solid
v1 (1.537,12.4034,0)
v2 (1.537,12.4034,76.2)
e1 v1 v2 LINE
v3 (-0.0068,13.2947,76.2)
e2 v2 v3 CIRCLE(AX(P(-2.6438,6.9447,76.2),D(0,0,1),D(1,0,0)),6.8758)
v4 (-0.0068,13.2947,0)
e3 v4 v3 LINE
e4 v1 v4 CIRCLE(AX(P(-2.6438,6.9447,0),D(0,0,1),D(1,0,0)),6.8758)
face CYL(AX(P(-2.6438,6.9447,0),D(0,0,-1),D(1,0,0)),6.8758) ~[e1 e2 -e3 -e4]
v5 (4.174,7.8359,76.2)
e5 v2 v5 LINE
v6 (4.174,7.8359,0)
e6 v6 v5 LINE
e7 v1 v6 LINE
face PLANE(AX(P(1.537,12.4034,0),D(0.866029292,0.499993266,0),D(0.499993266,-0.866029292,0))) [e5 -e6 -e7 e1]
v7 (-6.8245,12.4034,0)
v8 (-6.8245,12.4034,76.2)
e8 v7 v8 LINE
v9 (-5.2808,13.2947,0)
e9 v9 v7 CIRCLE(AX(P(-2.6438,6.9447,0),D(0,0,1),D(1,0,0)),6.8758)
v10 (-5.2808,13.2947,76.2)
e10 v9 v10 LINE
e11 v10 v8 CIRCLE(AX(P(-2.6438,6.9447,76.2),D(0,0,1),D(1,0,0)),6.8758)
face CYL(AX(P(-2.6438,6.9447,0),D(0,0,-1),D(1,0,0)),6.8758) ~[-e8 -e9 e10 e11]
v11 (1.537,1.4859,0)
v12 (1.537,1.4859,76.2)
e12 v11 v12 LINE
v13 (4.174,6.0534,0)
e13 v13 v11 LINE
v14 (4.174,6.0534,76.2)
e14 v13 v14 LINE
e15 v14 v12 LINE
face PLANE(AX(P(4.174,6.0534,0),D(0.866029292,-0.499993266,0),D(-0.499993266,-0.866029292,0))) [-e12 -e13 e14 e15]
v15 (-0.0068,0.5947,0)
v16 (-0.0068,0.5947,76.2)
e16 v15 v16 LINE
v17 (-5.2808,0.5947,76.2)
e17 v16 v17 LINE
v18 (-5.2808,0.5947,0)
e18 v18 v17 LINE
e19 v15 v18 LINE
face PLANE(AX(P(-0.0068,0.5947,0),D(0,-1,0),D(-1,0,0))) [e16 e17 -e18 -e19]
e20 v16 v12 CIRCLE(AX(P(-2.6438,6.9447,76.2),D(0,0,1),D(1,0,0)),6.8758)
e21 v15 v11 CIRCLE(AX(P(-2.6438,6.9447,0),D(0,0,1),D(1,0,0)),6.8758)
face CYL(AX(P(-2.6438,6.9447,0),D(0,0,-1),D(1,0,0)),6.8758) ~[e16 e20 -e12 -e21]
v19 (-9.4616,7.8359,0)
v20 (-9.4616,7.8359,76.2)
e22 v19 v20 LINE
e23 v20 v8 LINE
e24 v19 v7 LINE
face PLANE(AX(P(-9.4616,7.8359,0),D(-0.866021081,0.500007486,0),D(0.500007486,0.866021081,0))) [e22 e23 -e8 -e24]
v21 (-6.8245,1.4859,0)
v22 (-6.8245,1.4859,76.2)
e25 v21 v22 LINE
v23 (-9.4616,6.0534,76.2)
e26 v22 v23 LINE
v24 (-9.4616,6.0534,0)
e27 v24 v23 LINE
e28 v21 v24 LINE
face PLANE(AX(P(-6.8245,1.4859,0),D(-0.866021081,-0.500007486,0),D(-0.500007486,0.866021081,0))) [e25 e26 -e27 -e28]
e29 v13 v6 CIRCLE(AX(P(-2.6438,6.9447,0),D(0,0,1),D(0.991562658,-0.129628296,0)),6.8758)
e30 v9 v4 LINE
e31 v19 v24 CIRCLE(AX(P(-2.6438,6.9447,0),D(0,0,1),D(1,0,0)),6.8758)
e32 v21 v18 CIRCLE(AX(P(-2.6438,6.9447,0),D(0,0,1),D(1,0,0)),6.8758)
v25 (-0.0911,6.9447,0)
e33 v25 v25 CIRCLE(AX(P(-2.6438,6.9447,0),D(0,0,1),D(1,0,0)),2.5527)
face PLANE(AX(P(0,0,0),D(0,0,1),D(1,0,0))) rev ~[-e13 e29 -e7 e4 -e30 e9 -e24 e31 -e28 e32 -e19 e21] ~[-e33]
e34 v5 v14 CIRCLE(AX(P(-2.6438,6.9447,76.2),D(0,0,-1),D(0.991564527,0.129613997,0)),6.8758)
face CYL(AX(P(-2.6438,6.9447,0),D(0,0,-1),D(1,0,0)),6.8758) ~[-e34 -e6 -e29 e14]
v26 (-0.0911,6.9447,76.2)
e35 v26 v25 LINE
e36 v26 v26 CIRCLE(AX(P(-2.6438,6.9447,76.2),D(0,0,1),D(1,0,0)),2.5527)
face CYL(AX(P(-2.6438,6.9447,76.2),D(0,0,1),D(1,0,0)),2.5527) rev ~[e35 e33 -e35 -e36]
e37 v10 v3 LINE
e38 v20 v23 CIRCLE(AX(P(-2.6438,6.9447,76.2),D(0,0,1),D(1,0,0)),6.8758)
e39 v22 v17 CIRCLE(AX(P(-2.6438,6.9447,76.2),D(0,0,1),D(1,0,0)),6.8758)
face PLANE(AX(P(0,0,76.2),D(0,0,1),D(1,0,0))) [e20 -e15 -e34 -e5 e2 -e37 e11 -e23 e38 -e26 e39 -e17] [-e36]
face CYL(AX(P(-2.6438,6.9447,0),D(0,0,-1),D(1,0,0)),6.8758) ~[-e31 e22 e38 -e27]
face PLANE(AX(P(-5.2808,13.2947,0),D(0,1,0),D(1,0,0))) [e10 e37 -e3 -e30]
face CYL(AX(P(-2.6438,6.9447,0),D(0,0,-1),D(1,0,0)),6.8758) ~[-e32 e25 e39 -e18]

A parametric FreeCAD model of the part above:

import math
import FreeCAD as App
import Part
import Sketcher

V = App.Vector
Q = App.Units.Quantity

doc = App.newDocument("Part")
body = doc.addObject("PartDesign::Body", "Body")

# Sketch on XY plane
sketch1 = doc.addObject("Sketcher::SketchObject", "Sketch")
body.addObject(sketch1)
sketch1.AttachmentSupport = (doc.XY_Plane, [""])
sketch1.MapMode = "FlatFace"
sketch1.addGeometry([
    Part.ArcOfCircle(Part.Circle(V(-2.6, 6.9, 0), V(0, 0, 1), 6.9), math.radians(-7.45), math.radians(7.45)),  # 0
    Part.LineSegment(V(4.2, 7.8, 0), V(1.5, 12.4, 0)),  # 1
    Part.ArcOfCircle(Part.Circle(V(-2.6, 6.9, 0), V(0, 0, 1), 6.9), math.radians(52.55), math.radians(67.45)),  # 2
    Part.LineSegment(V(0, 13.3, 0), V(-5.3, 13.3, 0)),  # 3
    Part.ArcOfCircle(Part.Circle(V(-2.6, 6.9, 0), V(0, 0, 1), 6.9), math.radians(112.55), math.radians(127.45)),  # 4
    Part.LineSegment(V(-6.8, 12.4, 0), V(-9.5, 7.8, 0)),  # 5
    Part.ArcOfCircle(Part.Circle(V(-2.6, 6.9, 0), V(0, 0, 1), 6.9), math.radians(172.55), math.radians(187.45)),  # 6
    Part.LineSegment(V(-9.5, 6.1, 0), V(-6.8, 1.5, 0)),  # 7
    Part.ArcOfCircle(Part.Circle(V(-2.6, 6.9, 0), V(0, 0, 1), 6.9), math.radians(-127.45), math.radians(-112.55)),  # 8
    Part.LineSegment(V(-5.3, 0.6, 0), V(0, 0.6, 0)),  # 9
    Part.ArcOfCircle(Part.Circle(V(-2.6, 6.9, 0), V(0, 0, 1), 6.9), math.radians(-67.45), math.radians(-52.55)),  # 10
    Part.LineSegment(V(1.5, 1.5, 0), V(4.2, 6.1, 0)),  # 11
], False)
sketch1.addConstraint([
    Sketcher.Constraint("Coincident", 0, 2, 1, 1),
    Sketcher.Constraint("Coincident", 1, 2, 2, 1),
    Sketcher.Constraint("Coincident", 2, 2, 3, 1),
    Sketcher.Constraint("Coincident", 3, 2, 4, 1),
    Sketcher.Constraint("Coincident", 4, 2, 5, 1),
    Sketcher.Constraint("Coincident", 5, 2, 6, 1),
    Sketcher.Constraint("Coincident", 6, 2, 7, 1),
    Sketcher.Constraint("Coincident", 7, 2, 8, 1),
    Sketcher.Constraint("Coincident", 8, 2, 9, 1),
    Sketcher.Constraint("Coincident", 9, 2, 10, 1),
    Sketcher.Constraint("Coincident", 10, 2, 11, 1),
    Sketcher.Constraint("Coincident", 11, 2, 0, 1),
    Sketcher.Constraint("Horizontal", 3),
    Sketcher.Constraint("Horizontal", 9),
    Sketcher.Constraint("Coincident", 2, 3, 0, 3),
    Sketcher.Constraint("Coincident", 4, 3, 0, 3),
    Sketcher.Constraint("Coincident", 6, 3, 0, 3),
    Sketcher.Constraint("Coincident", 8, 3, 0, 3),
    Sketcher.Constraint("Coincident", 10, 3, 0, 3),
    Sketcher.Constraint("Equal", 0, 2),
    Sketcher.Constraint("Equal", 2, 4),
    Sketcher.Constraint("Equal", 4, 6),
    Sketcher.Constraint("Equal", 6, 8),
    Sketcher.Constraint("Equal", 8, 10),
    Sketcher.Constraint("Parallel", 1, 7),
    Sketcher.Constraint("Parallel", 5, 11),
    Sketcher.Constraint("Horizontal", 1, 2, 4, 2),
    Sketcher.Constraint("Horizontal", 0, 2, 5, 2),
    Sketcher.Constraint("Horizontal", 7, 2, 10, 2),
    Sketcher.Constraint("Vertical", 5, 2, 6, 2),
    Sketcher.Constraint("Vertical", 3, 2, 8, 2),
    Sketcher.Constraint("Radius", 0, Q("0.2707 in")),
    Sketcher.Constraint("Angle", 1, Q("119.9996 deg")),
    Sketcher.Constraint("DistanceY", 0, 3, 2, 2, Q("0.25 in")),
    Sketcher.Constraint("DistanceY", 10, 2, 0, 2, Q("0.25 in")),
    Sketcher.Constraint("DistanceY", -1, 1, 0, 2, Q("0.3085 in")),
    Sketcher.Constraint("DistanceX", -1, 1, 1, 2, Q("0.0605 in")),
])
pad1 = doc.addObject("PartDesign::Pad", "Pad")
body.addObject(pad1)
pad1.Profile = sketch1
pad1.Length = Q("3 in")

# Sketch on XY plane
sketch2 = doc.addObject("Sketcher::SketchObject", "Sketch001")
body.addObject(sketch2)
sketch2.AttachmentSupport = (doc.XY_Plane, [""])
sketch2.MapMode = "FlatFace"
sketch2.AttachmentOffset = App.Placement(V(0, 0, 3 * 25.4), App.Rotation())
sketch2.addGeometry(Part.Circle(V(-2.6, 6.9, 0), V(0, 0, 1), 2.6), False)
sketch2.addConstraint([
    Sketcher.Constraint("Diameter", 0, Q("0.201 in")),
    Sketcher.Constraint("DistanceX", 0, 3, -1, 1, Q("2.6438 mm")),
    Sketcher.Constraint("DistanceY", -1, 1, 0, 3, Q("6.9447 mm")),
])
pocket1 = doc.addObject("PartDesign::Pocket", "Pocket")
body.addObject(pocket1)
pocket1.Profile = sketch2
pocket1.Length = Q("3 in")

doc.recompute()
